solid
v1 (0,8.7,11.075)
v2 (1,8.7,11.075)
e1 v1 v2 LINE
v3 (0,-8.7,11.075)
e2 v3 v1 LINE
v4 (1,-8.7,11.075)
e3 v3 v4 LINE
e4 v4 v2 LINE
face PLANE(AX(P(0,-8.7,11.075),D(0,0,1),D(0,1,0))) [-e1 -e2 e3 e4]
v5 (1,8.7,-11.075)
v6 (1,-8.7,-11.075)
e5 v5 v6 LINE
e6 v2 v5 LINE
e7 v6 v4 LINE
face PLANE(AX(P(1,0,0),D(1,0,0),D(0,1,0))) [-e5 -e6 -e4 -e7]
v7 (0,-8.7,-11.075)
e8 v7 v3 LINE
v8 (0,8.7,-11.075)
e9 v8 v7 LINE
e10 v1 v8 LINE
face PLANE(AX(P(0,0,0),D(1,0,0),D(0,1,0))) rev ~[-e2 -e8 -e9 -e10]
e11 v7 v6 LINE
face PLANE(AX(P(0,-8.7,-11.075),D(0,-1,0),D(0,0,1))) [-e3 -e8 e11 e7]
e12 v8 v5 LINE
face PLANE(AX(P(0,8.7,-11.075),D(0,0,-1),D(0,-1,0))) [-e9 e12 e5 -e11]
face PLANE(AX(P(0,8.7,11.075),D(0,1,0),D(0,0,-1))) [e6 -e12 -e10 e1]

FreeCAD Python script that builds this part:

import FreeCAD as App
import Part
import Sketcher

doc = App.newDocument("Part")
body = doc.addObject("PartDesign::Body", "Body")

sketch1 = doc.addObject("Sketcher::SketchObject", "Sketch")
body.addObject(sketch1)
sketch1.AttachmentSupport = (doc.YZ_Plane, [""])
sketch1.MapMode = "FlatFace"
sketch1.addGeometry([
    Part.LineSegment(App.Vector(9, 11, 0), App.Vector(-9, 11, 0)),
    Part.LineSegment(App.Vector(-9, 11, 0), App.Vector(-9, -11, 0)),
    Part.LineSegment(App.Vector(-9, -11, 0), App.Vector(9, -11, 0)),
    Part.LineSegment(App.Vector(9, -11, 0), App.Vector(9, 11, 0)),
], False)
sketch1.addConstraint([
    Sketcher.Constraint("Coincident", 0, 2, 1, 1),
    Sketcher.Constraint("Coincident", 1, 2, 2, 1),
    Sketcher.Constraint("Coincident", 2, 2, 3, 1),
    Sketcher.Constraint("Coincident", 3, 2, 0, 1),
    Sketcher.Constraint("Horizontal", 0),
    Sketcher.Constraint("Vertical", 1),
    Sketcher.Constraint("Horizontal", 2),
    Sketcher.Constraint("Vertical", 3),
    Sketcher.Constraint("Symmetric", 0, 2, 2, 2, -1, 1),
    Sketcher.Constraint("DistanceX", 0, 2, 0, 1, 17.4),
    Sketcher.Constraint("DistanceY", 1, 2, 1, 1, 22.15),
])
pad1 = doc.addObject("PartDesign::Pad", "Pad")
body.addObject(pad1)
pad1.Profile = sketch1
pad1.Length = 1

doc.recompute()
